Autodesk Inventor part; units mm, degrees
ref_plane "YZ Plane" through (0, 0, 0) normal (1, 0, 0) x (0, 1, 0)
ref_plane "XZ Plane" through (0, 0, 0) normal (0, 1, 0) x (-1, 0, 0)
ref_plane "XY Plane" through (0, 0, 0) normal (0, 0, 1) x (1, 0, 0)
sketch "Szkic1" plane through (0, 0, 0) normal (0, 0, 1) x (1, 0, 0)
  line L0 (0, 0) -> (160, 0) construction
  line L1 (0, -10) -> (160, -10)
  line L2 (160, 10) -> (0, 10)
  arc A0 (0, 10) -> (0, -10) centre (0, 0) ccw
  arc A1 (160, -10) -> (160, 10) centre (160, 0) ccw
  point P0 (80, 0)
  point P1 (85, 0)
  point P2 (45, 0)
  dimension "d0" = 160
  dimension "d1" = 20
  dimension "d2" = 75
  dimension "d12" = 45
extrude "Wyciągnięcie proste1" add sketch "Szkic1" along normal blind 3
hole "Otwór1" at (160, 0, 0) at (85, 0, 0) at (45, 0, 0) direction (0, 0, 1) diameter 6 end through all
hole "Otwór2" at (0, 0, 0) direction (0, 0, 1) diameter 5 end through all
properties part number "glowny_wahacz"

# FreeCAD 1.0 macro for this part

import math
import FreeCAD as App
import Part
import Sketcher

V = App.Vector

doc = App.newDocument("Part")
body = doc.addObject("PartDesign::Body", "Body")

# Sketch on XY plane
sketch1 = body.newObject("Sketcher::SketchObject", "Sketch")
sketch1.AttachmentSupport = (doc.getObject("XY_Plane"), [""])
sketch1.MapMode = "FlatFace"
sketch1.addGeometry([
    Part.ArcOfCircle(Part.Circle(V(0, 0, 0), V(0, 0, 1), 10), math.radians(90), math.radians(270)),
    Part.LineSegment(V(0, -10, 0), V(160, -10, 0)),
    Part.ArcOfCircle(Part.Circle(V(160, 0, 0), V(0, 0, 1), 10), math.radians(-90), math.radians(90)),
    Part.LineSegment(V(160, 10, 0), V(0, 10, 0)),
], False)
sketch1.addConstraint([
    Sketcher.Constraint("Tangent", 0, 2, 1, 1),
    Sketcher.Constraint("Tangent", 1, 2, 2, 1),
    Sketcher.Constraint("Tangent", 2, 2, 3, 1),
    Sketcher.Constraint("Tangent", 3, 2, 0, 1),
    Sketcher.Constraint("Horizontal", 1),
    Sketcher.Constraint("Horizontal", 3),
    Sketcher.Constraint("Coincident", 0, 3, -1, 1),
    Sketcher.Constraint("Radius", 0, 10.0),
    Sketcher.Constraint("DistanceX", 1, 1, 1, 2, 160.0),
])
pad1 = body.newObject("PartDesign::Pad", "Pad")
pad1.Profile = sketch1
pad1.Length = 3

# Sketch on XY plane
sketch2 = body.newObject("Sketcher::SketchObject", "Sketch001")
sketch2.AttachmentSupport = (doc.getObject("XY_Plane"), [""])
sketch2.MapMode = "FlatFace"
sketch2.addGeometry([
    Part.Circle(V(160, 0, 0), V(0, 0, 1), 3),
    Part.Circle(V(85, 0, 0), V(0, 0, 1), 3),
    Part.Circle(V(45, 0, 0), V(0, 0, 1), 3),
], False)
sketch2.addConstraint([
    Sketcher.Constraint("Equal", 0, 1),
    Sketcher.Constraint("Equal", 1, 2),
    Sketcher.Constraint("PointOnObject", 0, 3, -1),
    Sketcher.Constraint("PointOnObject", 1, 3, -1),
    Sketcher.Constraint("PointOnObject", 2, 3, -1),
    Sketcher.Constraint("Diameter", 0, 6.0),
    Sketcher.Constraint("DistanceX", -1, 1, 0, 3, 160.0),
    Sketcher.Constraint("DistanceX", -1, 1, 1, 3, 85.0),
    Sketcher.Constraint("DistanceX", -1, 1, 2, 3, 45.0),
])
doc.recompute()
hole = body.newObject("PartDesign::Hole", "Hole")
hole.Profile = sketch2
hole.ThreadType = "None"
hole.Diameter = 6
hole.DepthType = "ThroughAll"
hole.Reversed = True

# Sketch on XY plane
sketch3 = body.newObject("Sketcher::SketchObject", "Sketch002")
sketch3.AttachmentSupport = (doc.getObject("XY_Plane"), [""])
sketch3.MapMode = "FlatFace"
sketch3.addGeometry(Part.Circle(V(0, 0, 0), V(0, 0, 1), 2.5), False)
sketch3.addConstraint([
    Sketcher.Constraint("Coincident", 0, 3, -1, 1),
    Sketcher.Constraint("Diameter", 0, 5.0),
])
doc.recompute()
hole2 = body.newObject("PartDesign::Hole", "Hole001")
hole2.Profile = sketch3
hole2.ThreadType = "None"
hole2.Diameter = 5
hole2.DepthType = "ThroughAll"
hole2.Reversed = True

doc.recompute()
